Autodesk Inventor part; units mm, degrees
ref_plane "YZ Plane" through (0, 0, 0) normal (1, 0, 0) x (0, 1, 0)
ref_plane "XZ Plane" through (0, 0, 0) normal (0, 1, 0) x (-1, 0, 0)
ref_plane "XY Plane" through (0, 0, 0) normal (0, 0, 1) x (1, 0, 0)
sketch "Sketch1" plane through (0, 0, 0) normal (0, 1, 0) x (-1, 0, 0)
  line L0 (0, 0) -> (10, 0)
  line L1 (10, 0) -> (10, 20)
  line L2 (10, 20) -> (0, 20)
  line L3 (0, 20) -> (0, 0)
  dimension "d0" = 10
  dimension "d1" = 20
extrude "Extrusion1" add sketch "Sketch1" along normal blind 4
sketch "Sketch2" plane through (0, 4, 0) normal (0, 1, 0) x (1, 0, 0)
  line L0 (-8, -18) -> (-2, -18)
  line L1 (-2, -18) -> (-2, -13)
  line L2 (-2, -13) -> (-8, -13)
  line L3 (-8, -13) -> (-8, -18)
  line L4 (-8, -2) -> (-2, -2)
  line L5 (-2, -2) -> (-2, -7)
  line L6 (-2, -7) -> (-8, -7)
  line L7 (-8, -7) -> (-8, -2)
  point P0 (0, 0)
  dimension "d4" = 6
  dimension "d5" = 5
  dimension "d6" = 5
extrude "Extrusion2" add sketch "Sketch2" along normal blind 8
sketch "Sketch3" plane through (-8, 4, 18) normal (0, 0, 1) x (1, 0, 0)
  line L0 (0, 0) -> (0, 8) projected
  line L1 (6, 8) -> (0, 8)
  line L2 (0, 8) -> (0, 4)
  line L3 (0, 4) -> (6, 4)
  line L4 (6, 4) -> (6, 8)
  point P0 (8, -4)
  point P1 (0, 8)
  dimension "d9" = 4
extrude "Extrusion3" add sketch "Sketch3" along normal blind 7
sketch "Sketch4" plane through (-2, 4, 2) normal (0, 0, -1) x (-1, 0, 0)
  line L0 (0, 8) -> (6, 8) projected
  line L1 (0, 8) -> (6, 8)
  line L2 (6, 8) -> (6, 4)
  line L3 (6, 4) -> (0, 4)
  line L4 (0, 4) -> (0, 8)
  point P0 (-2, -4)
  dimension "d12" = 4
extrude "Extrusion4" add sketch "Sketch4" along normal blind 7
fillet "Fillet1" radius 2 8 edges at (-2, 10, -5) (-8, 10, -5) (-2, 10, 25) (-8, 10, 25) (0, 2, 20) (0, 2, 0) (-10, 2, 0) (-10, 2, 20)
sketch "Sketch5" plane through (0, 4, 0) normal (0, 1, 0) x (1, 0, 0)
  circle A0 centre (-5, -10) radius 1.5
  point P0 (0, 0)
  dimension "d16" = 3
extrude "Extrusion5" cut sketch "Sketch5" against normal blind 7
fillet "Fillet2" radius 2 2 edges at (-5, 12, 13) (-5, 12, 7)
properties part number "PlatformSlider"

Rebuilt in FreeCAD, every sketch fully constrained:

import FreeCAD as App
import Part
import Sketcher
Q = App.Units.Quantity


def edges_at(feature, points):
    """Names of the edges that pass closest to the given points."""
    edges = feature.Shape.Edges
    near = lambda p: min(range(len(edges)), key=lambda i: edges[i].distToShape(Part.Vertex(*p))[0])
    return sorted({f"Edge{near(p) + 1}" for p in points})

doc = App.newDocument("Part")
params = doc.addObject("Spreadsheet::Sheet", "Params")
for row, (alias, value) in enumerate([
    ("sketch1_width", "10 mm"),
    ("sketch1_height", "20 mm"),
    ("pad1_length", "4 mm"),
    ("sketch2_width", "6 mm"),
    ("sketch2_height", "5 mm"),
    ("pad2_length", "8 mm"),
    ("sketch3_height", "4 mm"),
    ("sketch3_width", "6 mm"),
    ("pad3_length", "7 mm"),
    ("sketch4_height", "4 mm"),
    ("sketch4_width", "6 mm"),
    ("pad4_length", "7 mm"),
    ("fillet_radius", "2 mm"),
    ("sketch5_diameter", "3 mm"),
    ("pocket1_length", "7 mm"),
    ("fillet2_radius", "2 mm"),
], start=1):
    params.set(f"A{row}", alias)
    params.set(f"B{row}", "=" + value)
    params.setAlias(f"B{row}", alias)

body = doc.addObject("PartDesign::Body", "Body")

sketch1 = body.newObject("Sketcher::SketchObject", "Sketch")
sketch1.AttachmentSupport = (doc.getObject("XZ_Plane"), [""])
sketch1.MapMode = "FlatFace"
sketch1.addGeometry(Part.LineSegment(App.Vector(0, 20, 0), App.Vector(0, 0, 0)), False)
sketch1.addGeometry(Part.LineSegment(App.Vector(0, 0, 0), App.Vector(-10, 0, 0)), False)
sketch1.addGeometry(Part.LineSegment(App.Vector(-10, 0, 0), App.Vector(-10, 20, 0)), False)
sketch1.addGeometry(Part.LineSegment(App.Vector(-10, 20, 0), App.Vector(0, 20, 0)), False)
sketch1.addConstraint(Sketcher.Constraint("Coincident", 0, 2, 1, 1))
sketch1.addConstraint(Sketcher.Constraint("Coincident", 1, 2, 2, 1))
sketch1.addConstraint(Sketcher.Constraint("Coincident", 2, 2, 3, 1))
sketch1.addConstraint(Sketcher.Constraint("Coincident", 3, 2, 0, 1))
sketch1.addConstraint(Sketcher.Constraint("Vertical", 0))
sketch1.addConstraint(Sketcher.Constraint("Horizontal", 1))
sketch1.addConstraint(Sketcher.Constraint("Vertical", 2))
sketch1.addConstraint(Sketcher.Constraint("Horizontal", 3))
sketch1.addConstraint(Sketcher.Constraint("Coincident", 0, 2, -1, 1))
sketch1.addConstraint(Sketcher.Constraint("DistanceX", 1, 2, 1, 1, Q("10 mm")))
sketch1.addConstraint(Sketcher.Constraint("DistanceY", 0, 2, 0, 1, Q("20 mm")))
sketch1.setExpression("Constraints[9]", "Params.sketch1_width")
sketch1.setExpression("Constraints[10]", "Params.sketch1_height")
pad1 = body.newObject("PartDesign::Pad", "Pad")
pad1.Profile = sketch1
pad1.setExpression("Length", "Params.pad1_length")
pad1.Reversed = True

sketch2 = body.newObject("Sketcher::SketchObject", "Sketch001")
sketch2.AttachmentSupport = (doc.getObject("XZ_Plane"), [""])
sketch2.MapMode = "FlatFace"
sketch2.AttachmentOffset = App.Placement(App.Vector(0, 0, -4), App.Rotation())
sketch2.addGeometry(Part.LineSegment(App.Vector(-8, 13, 0), App.Vector(-8, 18, 0)), False)
sketch2.addGeometry(Part.LineSegment(App.Vector(-8, 18, 0), App.Vector(-2, 18, 0)), False)
sketch2.addGeometry(Part.LineSegment(App.Vector(-2, 18, 0), App.Vector(-2, 13, 0)), False)
sketch2.addGeometry(Part.LineSegment(App.Vector(-2, 13, 0), App.Vector(-8, 13, 0)), False)
sketch2.addGeometry(Part.LineSegment(App.Vector(-2, 2, 0), App.Vector(-8, 2, 0)), False)
sketch2.addGeometry(Part.LineSegment(App.Vector(-8, 2, 0), App.Vector(-8, 7, 0)), False)
sketch2.addGeometry(Part.LineSegment(App.Vector(-8, 7, 0), App.Vector(-2, 7, 0)), False)
sketch2.addGeometry(Part.LineSegment(App.Vector(-2, 7, 0), App.Vector(-2, 2, 0)), False)
sketch2.addConstraint(Sketcher.Constraint("Coincident", 0, 2, 1, 1))
sketch2.addConstraint(Sketcher.Constraint("Coincident", 1, 2, 2, 1))
sketch2.addConstraint(Sketcher.Constraint("Coincident", 2, 2, 3, 1))
sketch2.addConstraint(Sketcher.Constraint("Coincident", 3, 2, 0, 1))
sketch2.addConstraint(Sketcher.Constraint("Coincident", 4, 2, 5, 1))
sketch2.addConstraint(Sketcher.Constraint("Coincident", 5, 2, 6, 1))
sketch2.addConstraint(Sketcher.Constraint("Coincident", 6, 2, 7, 1))
sketch2.addConstraint(Sketcher.Constraint("Coincident", 7, 2, 4, 1))
sketch2.addConstraint(Sketcher.Constraint("Vertical", 0))
sketch2.addConstraint(Sketcher.Constraint("Horizontal", 1))
sketch2.addConstraint(Sketcher.Constraint("Vertical", 2))
sketch2.addConstraint(Sketcher.Constraint("Horizontal", 3))
sketch2.addConstraint(Sketcher.Constraint("Horizontal", 4))
sketch2.addConstraint(Sketcher.Constraint("Vertical", 5))
sketch2.addConstraint(Sketcher.Constraint("Horizontal", 6))
sketch2.addConstraint(Sketcher.Constraint("Vertical", 7))
sketch2.addConstraint(Sketcher.Constraint("Vertical", 3, 2, 4, 2))
sketch2.addConstraint(Sketcher.Constraint("Vertical", 2, 2, 6, 2))
sketch2.addConstraint(Sketcher.Constraint("Equal", 2, 5))
sketch2.addConstraint(Sketcher.Constraint("DistanceX", 1, 1, 1, 2, Q("6 mm")))
sketch2.addConstraint(Sketcher.Constraint("DistanceY", 0, 1, 0, 2, Q("5 mm")))
sketch2.addConstraint(Sketcher.Constraint("DistanceY", 5, 2, 3, 2, Q("6 mm")))
sketch2.addConstraint(Sketcher.Constraint("DistanceX", 0, 2, -1, 1, Q("8 mm")))
sketch2.addConstraint(Sketcher.Constraint("DistanceY", -1, 1, 0, 2, Q("18 mm")))
sketch2.setExpression("Constraints[19]", "Params.sketch2_width")
sketch2.setExpression("Constraints[20]", "Params.sketch2_height")
pad2 = body.newObject("PartDesign::Pad", "Pad001")
pad2.Profile = sketch2
pad2.setExpression("Length", "Params.pad2_length")
pad2.Reversed = True

sketch3 = body.newObject("Sketcher::SketchObject", "Sketch002")
sketch3.AttachmentSupport = (doc.getObject("XY_Plane"), [""])
sketch3.MapMode = "FlatFace"
sketch3.AttachmentOffset = App.Placement(App.Vector(0, 0, 18), App.Rotation())
sketch3.addGeometry(Part.LineSegment(App.Vector(-8, 12, 0), App.Vector(-8, 8, 0)), False)
sketch3.addGeometry(Part.LineSegment(App.Vector(-8, 8, 0), App.Vector(-2, 8, 0)), False)
sketch3.addGeometry(Part.LineSegment(App.Vector(-2, 8, 0), App.Vector(-2, 12, 0)), False)
sketch3.addGeometry(Part.LineSegment(App.Vector(-2, 12, 0), App.Vector(-8, 12, 0)), False)
sketch3.addConstraint(Sketcher.Constraint("Coincident", 0, 2, 1, 1))
sketch3.addConstraint(Sketcher.Constraint("Coincident", 1, 2, 2, 1))
sketch3.addConstraint(Sketcher.Constraint("Coincident", 2, 2, 3, 1))
sketch3.addConstraint(Sketcher.Constraint("Coincident", 3, 2, 0, 1))
sketch3.addConstraint(Sketcher.Constraint("Vertical", 0))
sketch3.addConstraint(Sketcher.Constraint("Horizontal", 1))
sketch3.addConstraint(Sketcher.Constraint("Vertical", 2))
sketch3.addConstraint(Sketcher.Constraint("Horizontal", 3))
sketch3.addConstraint(Sketcher.Constraint("DistanceY", 0, 2, 0, 1, Q("4 mm")))
sketch3.addConstraint(Sketcher.Constraint("DistanceX", 1, 1, 1, 2, Q("6 mm")))
sketch3.addConstraint(Sketcher.Constraint("DistanceX", 0, 2, -1, 1, Q("8 mm")))
sketch3.addConstraint(Sketcher.Constraint("DistanceY", -1, 1, 0, 2, Q("8 mm")))
sketch3.setExpression("Constraints[8]", "Params.sketch3_height")
sketch3.setExpression("Constraints[9]", "Params.sketch3_width")
pad3 = body.newObject("PartDesign::Pad", "Pad002")
pad3.Profile = sketch3
pad3.setExpression("Length", "Params.pad3_length")

sketch4 = body.newObject("Sketcher::SketchObject", "Sketch003")
sketch4.AttachmentSupport = (doc.getObject("XY_Plane"), [""])
sketch4.MapMode = "FlatFace"
sketch4.AttachmentOffset = App.Placement(App.Vector(0, 0, 2), App.Rotation())
sketch4.addGeometry(Part.LineSegment(App.Vector(-8, 12, 0), App.Vector(-2, 12, 0)), False)
sketch4.addGeometry(Part.LineSegment(App.Vector(-2, 12, 0), App.Vector(-2, 8, 0)), False)
sketch4.addGeometry(Part.LineSegment(App.Vector(-2, 8, 0), App.Vector(-8, 8, 0)), False)
sketch4.addGeometry(Part.LineSegment(App.Vector(-8, 8, 0), App.Vector(-8, 12, 0)), False)
sketch4.addConstraint(Sketcher.Constraint("Coincident", 0, 2, 1, 1))
sketch4.addConstraint(Sketcher.Constraint("Coincident", 1, 2, 2, 1))
sketch4.addConstraint(Sketcher.Constraint("Coincident", 2, 2, 3, 1))
sketch4.addConstraint(Sketcher.Constraint("Coincident", 3, 2, 0, 1))
sketch4.addConstraint(Sketcher.Constraint("Horizontal", 0))
sketch4.addConstraint(Sketcher.Constraint("Vertical", 1))
sketch4.addConstraint(Sketcher.Constraint("Horizontal", 2))
sketch4.addConstraint(Sketcher.Constraint("Vertical", 3))
sketch4.addConstraint(Sketcher.Constraint("DistanceY", 1, 2, 1, 1, Q("4 mm")))
sketch4.addConstraint(Sketcher.Constraint("DistanceX", 0, 1, 0, 2, Q("6 mm")))
sketch4.addConstraint(Sketcher.Constraint("DistanceX", 0, 2, -1, 1, Q("2 mm")))
sketch4.addConstraint(Sketcher.Constraint("DistanceY", -1, 1, 0, 2, Q("12 mm")))
sketch4.setExpression("Constraints[8]", "Params.sketch4_height")
sketch4.setExpression("Constraints[9]", "Params.sketch4_width")
pad4 = body.newObject("PartDesign::Pad", "Pad003")
pad4.Profile = sketch4
pad4.setExpression("Length", "Params.pad4_length")
pad4.Reversed = True
doc.recompute()

fillet = body.newObject("PartDesign::Fillet", "Fillet")
fillet.Base = (pad4, edges_at(pad4, [
    (-2, 10, -5),
    (-8, 10, -5),
    (-2, 10, 25),
    (-8, 10, 25),
    (0, 2, 20),
    (0, 2, 0),
    (-10, 2, 0),
    (-10, 2, 20),
]))
fillet.setExpression("Radius", "Params.fillet_radius")

sketch5 = body.newObject("Sketcher::SketchObject", "Sketch004")
sketch5.AttachmentSupport = (doc.getObject("XZ_Plane"), [""])
sketch5.MapMode = "FlatFace"
sketch5.AttachmentOffset = App.Placement(App.Vector(0, 0, -4), App.Rotation())
sketch5.addGeometry(Part.Circle(App.Vector(-5, 10, 0), App.Vector(0, 0, 1), 1.5), False)
sketch5.addConstraint(Sketcher.Constraint("Diameter", 0, Q("3 mm")))
sketch5.addConstraint(Sketcher.Constraint("DistanceX", 0, 3, -1, 1, Q("5 mm")))
sketch5.addConstraint(Sketcher.Constraint("DistanceY", -1, 1, 0, 3, Q("10 mm")))
sketch5.setExpression("Constraints[0]", "Params.sketch5_diameter")
pocket1 = body.newObject("PartDesign::Pocket", "Pocket")
pocket1.Profile = sketch5
pocket1.setExpression("Length", "Params.pocket1_length")
pocket1.Reversed = True
doc.recompute()

fillet2 = body.newObject("PartDesign::Fillet", "Fillet001")
fillet2.Base = (pocket1, edges_at(pocket1, [(-5, 12, 13), (-5, 12, 7)]))
fillet2.setExpression("Radius", "Params.fillet2_radius")

doc.recompute()
